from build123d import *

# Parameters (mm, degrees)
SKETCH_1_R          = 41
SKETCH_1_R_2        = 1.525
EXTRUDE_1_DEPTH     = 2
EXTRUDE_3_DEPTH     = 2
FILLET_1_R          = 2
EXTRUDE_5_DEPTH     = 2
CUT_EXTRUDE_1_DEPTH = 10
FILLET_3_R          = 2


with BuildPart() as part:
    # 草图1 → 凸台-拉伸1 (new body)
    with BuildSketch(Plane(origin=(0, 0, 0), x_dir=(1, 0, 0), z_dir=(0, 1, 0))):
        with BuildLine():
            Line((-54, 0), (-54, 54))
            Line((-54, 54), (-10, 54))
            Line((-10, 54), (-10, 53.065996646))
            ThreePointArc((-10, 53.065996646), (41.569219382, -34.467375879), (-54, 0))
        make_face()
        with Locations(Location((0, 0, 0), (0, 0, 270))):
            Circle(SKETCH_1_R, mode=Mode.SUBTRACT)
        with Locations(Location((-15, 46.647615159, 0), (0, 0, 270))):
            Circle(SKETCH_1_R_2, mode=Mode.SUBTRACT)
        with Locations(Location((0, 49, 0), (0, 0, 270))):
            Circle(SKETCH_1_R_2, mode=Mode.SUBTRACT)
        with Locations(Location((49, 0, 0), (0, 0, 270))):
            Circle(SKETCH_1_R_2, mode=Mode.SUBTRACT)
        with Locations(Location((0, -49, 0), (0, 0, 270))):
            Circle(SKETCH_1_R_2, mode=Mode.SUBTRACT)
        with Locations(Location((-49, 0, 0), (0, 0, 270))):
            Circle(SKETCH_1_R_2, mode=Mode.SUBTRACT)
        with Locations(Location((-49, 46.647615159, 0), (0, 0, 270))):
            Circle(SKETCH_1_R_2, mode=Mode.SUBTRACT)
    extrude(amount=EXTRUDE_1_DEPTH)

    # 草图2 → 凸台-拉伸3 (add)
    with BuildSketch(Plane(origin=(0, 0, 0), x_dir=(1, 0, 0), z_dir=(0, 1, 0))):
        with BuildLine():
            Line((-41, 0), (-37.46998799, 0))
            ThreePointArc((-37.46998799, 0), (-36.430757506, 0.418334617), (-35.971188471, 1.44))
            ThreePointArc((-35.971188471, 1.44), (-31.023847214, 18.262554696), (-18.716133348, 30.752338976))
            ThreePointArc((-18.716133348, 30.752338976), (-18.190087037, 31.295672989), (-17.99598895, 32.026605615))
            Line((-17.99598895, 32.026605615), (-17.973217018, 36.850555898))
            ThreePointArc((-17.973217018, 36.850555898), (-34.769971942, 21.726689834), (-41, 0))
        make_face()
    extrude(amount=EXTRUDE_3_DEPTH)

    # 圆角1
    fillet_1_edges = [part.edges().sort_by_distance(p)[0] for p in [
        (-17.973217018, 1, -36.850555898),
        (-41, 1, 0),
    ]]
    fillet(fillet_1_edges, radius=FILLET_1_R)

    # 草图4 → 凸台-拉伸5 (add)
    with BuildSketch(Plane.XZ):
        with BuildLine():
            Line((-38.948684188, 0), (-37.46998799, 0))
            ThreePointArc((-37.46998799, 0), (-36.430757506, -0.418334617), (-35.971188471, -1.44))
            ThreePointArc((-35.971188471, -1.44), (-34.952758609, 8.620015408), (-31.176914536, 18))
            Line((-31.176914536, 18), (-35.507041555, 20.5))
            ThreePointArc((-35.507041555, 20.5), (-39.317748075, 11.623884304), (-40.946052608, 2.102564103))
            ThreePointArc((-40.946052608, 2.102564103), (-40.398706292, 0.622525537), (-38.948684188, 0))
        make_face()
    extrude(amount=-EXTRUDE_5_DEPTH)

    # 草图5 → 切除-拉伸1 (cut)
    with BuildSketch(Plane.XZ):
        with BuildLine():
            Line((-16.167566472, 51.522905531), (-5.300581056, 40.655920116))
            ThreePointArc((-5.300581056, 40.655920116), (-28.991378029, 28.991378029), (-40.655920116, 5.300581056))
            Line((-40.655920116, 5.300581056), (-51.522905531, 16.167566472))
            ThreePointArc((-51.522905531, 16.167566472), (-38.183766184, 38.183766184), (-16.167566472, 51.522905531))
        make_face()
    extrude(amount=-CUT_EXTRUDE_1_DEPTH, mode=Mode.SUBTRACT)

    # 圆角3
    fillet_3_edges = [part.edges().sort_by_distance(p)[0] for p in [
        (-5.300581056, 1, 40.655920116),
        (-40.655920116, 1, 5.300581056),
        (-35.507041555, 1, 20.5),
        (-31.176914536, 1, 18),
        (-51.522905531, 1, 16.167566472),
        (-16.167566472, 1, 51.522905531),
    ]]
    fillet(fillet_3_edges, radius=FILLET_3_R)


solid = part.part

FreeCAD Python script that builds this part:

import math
import FreeCAD as App
import Part
import Sketcher

V = App.Vector
Q = App.Units.Quantity


def edges_at(feature, points):
    """Names of the edges that pass closest to the given points."""
    edges = feature.Shape.Edges
    near = lambda p: min(range(len(edges)), key=lambda i: edges[i].distToShape(Part.Vertex(*p))[0])
    return sorted({f"Edge{near(p) + 1}" for p in points})

doc = App.newDocument("Part")
body = doc.addObject("PartDesign::Body", "Body")

# Sketch on XZ plane
sketch1 = body.newObject("Sketcher::SketchObject", "Sketch")
sketch1.AttachmentSupport = (doc.getObject("XZ_Plane"), [""])
sketch1.MapMode = "FlatFace"
sketch1.addGeometry([
    Part.LineSegment(V(-54, -54, 0), V(-54, 0, 0)),  # 0
    Part.ArcOfCircle(Part.Circle(V(0, 0, 0), V(0, 0, 1), 54), math.radians(-101), math.radians(180)),  # 1
    Part.LineSegment(V(-10, -53.1, 0), V(-10, -54, 0)),  # 2
    Part.LineSegment(V(-10, -54, 0), V(-54, -54, 0)),  # 3
    Part.Circle(V(0, 49, 0), V(0, 0, 1), 1.5),  # 4
    Part.Circle(V(49, 0, 0), V(0, 0, 1), 1.5),  # 5
    Part.Circle(V(0, 0, 0), V(0, 0, 1), 41),  # 6
    Part.Circle(V(-49, 0, 0), V(0, 0, 1), 1.5),  # 7
    Part.Circle(V(0, -49, 0), V(0, 0, 1), 1.5),  # 8
    Part.Circle(V(-15, -46.6, 0), V(0, 0, 1), 1.5),  # 9
    Part.Circle(V(-49, -46.6, 0), V(0, 0, 1), 1.5),  # 10
], False)
sketch1.addConstraint([
    Sketcher.Constraint("Tangent", 0, 2, 1, 2),
    Sketcher.Constraint("Coincident", 1, 1, 2, 1),
    Sketcher.Constraint("Coincident", 2, 2, 3, 1),
    Sketcher.Constraint("Coincident", 3, 2, 0, 1),
    Sketcher.Constraint("Vertical", 0),
    Sketcher.Constraint("Vertical", 2),
    Sketcher.Constraint("Horizontal", 3),
    Sketcher.Constraint("Coincident", 1, 3, -1, 1),
    Sketcher.Constraint("Coincident", 6, 3, -1, 1),
    Sketcher.Constraint("Equal", 4, 5),
    Sketcher.Constraint("Equal", 5, 7),
    Sketcher.Constraint("Equal", 7, 8),
    Sketcher.Constraint("Equal", 8, 9),
    Sketcher.Constraint("Equal", 9, 10),
    Sketcher.Constraint("Symmetric", 5, 3, 7, 3, -1, 1),
    Sketcher.Constraint("Symmetric", 4, 3, 8, 3, -1, 1),
    Sketcher.Constraint("PointOnObject", 4, 3, -2),
    Sketcher.Constraint("PointOnObject", 5, 3, -1),
    Sketcher.Constraint("Horizontal", 9, 3, 10, 3),
    Sketcher.Constraint("Vertical", 7, 3, 10, 3),
    Sketcher.Constraint("Diameter", 6, Q("82 mm")),
    Sketcher.Constraint("Radius", 1, Q("54 mm")),
    Sketcher.Constraint("Diameter", 4, Q("3.05 mm")),
    Sketcher.Constraint("DistanceX", 3, 2, 3, 1, Q("44 mm")),
    Sketcher.Constraint("DistanceY", 0, 1, 0, 2, Q("54 mm")),
    Sketcher.Constraint("DistanceY", -1, 1, 4, 3, Q("49 mm")),
    Sketcher.Constraint("DistanceX", -1, 1, 5, 3, Q("49 mm")),
    Sketcher.Constraint("DistanceX", 9, 3, -1, 1, Q("15 mm")),
    Sketcher.Constraint("DistanceY", 1, 1, 9, 3, Q("6.418381 mm")),
])
pad1 = body.newObject("PartDesign::Pad", "Pad")
pad1.Profile = sketch1
pad1.Length = 2
pad1.Reversed = True

# Sketch on XZ plane
sketch2 = body.newObject("Sketcher::SketchObject", "Sketch001")
sketch2.AttachmentSupport = (doc.getObject("XZ_Plane"), [""])
sketch2.MapMode = "FlatFace"
sketch2.addGeometry([
    Part.LineSegment(V(-41, 0, 0), V(-37.5, 0, 0)),  # 0
    Part.ArcOfCircle(Part.Circle(V(-37.5, -1.5, 0), V(0, 0, 1), 1.5), math.radians(2), math.radians(90)),  # 1
    Part.ArcOfCircle(Part.Circle(V(0, 0, 0), V(0, 0, 1), 36), math.radians(-178), math.radians(-121)),  # 2
    Part.ArcOfCircle(Part.Circle(V(-19.5, -32, 0), V(0, 0, 1), 1.5), math.radians(0), math.radians(59)),  # 3
    Part.LineSegment(V(-18, -32, 0), V(-18, -36.9, 0)),  # 4
    Part.ArcOfCircle(Part.Circle(V(0, 0, 0), V(0, 0, 1), 41), math.radians(180), math.radians(244)),  # 5
], False)
sketch2.addConstraint([
    Sketcher.Constraint("Tangent", 0, 2, 1, 2),
    Sketcher.Constraint("Tangent", 1, 1, 2, 1),
    Sketcher.Constraint("Tangent", 2, 2, 3, 2),
    Sketcher.Constraint("Tangent", 3, 1, 4, 1),
    Sketcher.Constraint("Coincident", 4, 2, 5, 2),
    Sketcher.Constraint("Coincident", 5, 1, 0, 1),
    Sketcher.Constraint("Horizontal", 0),
    Sketcher.Constraint("Coincident", 2, 3, -1, 1),
    Sketcher.Constraint("Coincident", 5, 3, -1, 1),
    Sketcher.Constraint("Equal", 1, 3),
    Sketcher.Constraint("PointOnObject", 0, 2, -1),
    Sketcher.Constraint("Radius", 2, Q("36 mm")),
    Sketcher.Constraint("Radius", 5, Q("41 mm")),
    Sketcher.Constraint("Radius", 1, Q("1.5 mm")),
    Sketcher.Constraint("DistanceX", 1, 3, 3, 1, Q("19.473999 mm")),
    Sketcher.Constraint("DistanceY", 3, 3, 3, 1, Q("0.007081 mm")),
])
pad2 = body.newObject("PartDesign::Pad", "Pad001")
pad2.Profile = sketch2
pad2.Length = 2
pad2.Reversed = True
doc.recompute()

fillet = body.newObject("PartDesign::Fillet", "Fillet")
fillet.Base = (pad2, edges_at(pad2, [(-17.973, 1, -36.851), (-41, 1, 0)]))
fillet.Radius = 2

# Sketch on XZ plane
sketch3 = body.newObject("Sketcher::SketchObject", "Sketch002")
sketch3.AttachmentSupport = (doc.getObject("XZ_Plane"), [""])
sketch3.MapMode = "FlatFace"
sketch3.addGeometry([
    Part.LineSegment(V(-38.9, 0, 0), V(-37.5, 0, 0)),  # 0
    Part.ArcOfCircle(Part.Circle(V(-37.5, -1.5, 0), V(0, 0, 1), 1.5), math.radians(2), math.radians(90)),  # 1
    Part.ArcOfCircle(Part.Circle(V(0, 0, 0), V(0, 0, 1), 36), math.radians(150), math.radians(182)),  # 2
    Part.LineSegment(V(-31.2, 18, 0), V(-35.5, 20.5, 0)),  # 3
    Part.ArcOfCircle(Part.Circle(V(0, 0, 0), V(0, 0, 1), 41), math.radians(150), math.radians(177)),  # 4
    Part.ArcOfCircle(Part.Circle(V(-38.9, 2, 0), V(0, 0, 1), 2), math.radians(177), math.radians(270)),  # 5
], False)
sketch3.addConstraint([
    Sketcher.Constraint("Tangent", 0, 2, 1, 2),
    Sketcher.Constraint("Tangent", 1, 1, 2, 2),
    Sketcher.Constraint("Coincident", 2, 1, 3, 1),
    Sketcher.Constraint("Coincident", 3, 2, 4, 1),
    Sketcher.Constraint("Tangent", 4, 2, 5, 1),
    Sketcher.Constraint("Tangent", 5, 2, 0, 1),
    Sketcher.Constraint("Horizontal", 0),
    Sketcher.Constraint("Coincident", 2, 3, -1, 1),
    Sketcher.Constraint("Coincident", 4, 3, -1, 1),
    Sketcher.Constraint("PointOnObject", 0, 2, -1),
    Sketcher.Constraint("Radius", 2, Q("36 mm")),
    Sketcher.Constraint("Radius", 4, Q("41 mm")),
    Sketcher.Constraint("Radius", 5, Q("2 mm")),
    Sketcher.Constraint("Radius", 1, Q("1.5 mm")),
    Sketcher.Constraint("Angle", 3, Q("150 deg")),
    Sketcher.Constraint("DistanceY", -1, 1, 2, 1, Q("18 mm")),
])
pad3 = body.newObject("PartDesign::Pad", "Pad002")
pad3.Profile = sketch3
pad3.Length = 2
pad3.Reversed = True

# Sketch on XZ plane
sketch4 = body.newObject("Sketcher::SketchObject", "Sketch003")
sketch4.AttachmentSupport = (doc.getObject("XZ_Plane"), [""])
sketch4.MapMode = "FlatFace"
sketch4.addGeometry([
    Part.LineSegment(V(-5, 41, 0), V(-16, 52, 0)),
    Part.ArcOfCircle(Part.Circle(V(0, 0, 0), V(0, 0, 1), 54), math.radians(107), math.radians(163)),
    Part.LineSegment(V(-52, 16, 0), V(-41, 5, 0)),
    Part.ArcOfCircle(Part.Circle(V(0, 0, 0), V(0, 0, 1), 41), math.radians(97), math.radians(173)),
], False)
sketch4.addConstraint([
    Sketcher.Constraint("Coincident", 0, 2, 1, 1),
    Sketcher.Constraint("Coincident", 1, 2, 2, 1),
    Sketcher.Constraint("Coincident", 2, 2, 3, 2),
    Sketcher.Constraint("Coincident", 3, 1, 0, 1),
    Sketcher.Constraint("Coincident", 1, 3, -1, 1),
    Sketcher.Constraint("Coincident", 3, 3, -1, 1),
    Sketcher.Constraint("Parallel", 0, 2),
    Sketcher.Constraint("Equal", 0, 2),
    Sketcher.Constraint("Radius", 1, Q("54 mm")),
    Sketcher.Constraint("Radius", 3, Q("41 mm")),
    Sketcher.Constraint("Angle", 0, Q("135 deg")),
    Sketcher.Constraint("Distance", 0, Q("15.368238 mm")),
])
pocket1 = body.newObject("PartDesign::Pocket", "Pocket")
pocket1.Profile = sketch4
pocket1.Length = 10
doc.recompute()

fillet2 = body.newObject("PartDesign::Fillet", "Fillet001")
fillet2.Base = (pocket1, edges_at(pocket1, [
    (-5.301, 1, 40.656),
    (-40.656, 1, 5.301),
    (-35.507, 1, 20.5),
    (-31.177, 1, 18),
    (-51.523, 1, 16.168),
    (-16.168, 1, 51.523),
]))
fillet2.Radius = 2

doc.recompute()
